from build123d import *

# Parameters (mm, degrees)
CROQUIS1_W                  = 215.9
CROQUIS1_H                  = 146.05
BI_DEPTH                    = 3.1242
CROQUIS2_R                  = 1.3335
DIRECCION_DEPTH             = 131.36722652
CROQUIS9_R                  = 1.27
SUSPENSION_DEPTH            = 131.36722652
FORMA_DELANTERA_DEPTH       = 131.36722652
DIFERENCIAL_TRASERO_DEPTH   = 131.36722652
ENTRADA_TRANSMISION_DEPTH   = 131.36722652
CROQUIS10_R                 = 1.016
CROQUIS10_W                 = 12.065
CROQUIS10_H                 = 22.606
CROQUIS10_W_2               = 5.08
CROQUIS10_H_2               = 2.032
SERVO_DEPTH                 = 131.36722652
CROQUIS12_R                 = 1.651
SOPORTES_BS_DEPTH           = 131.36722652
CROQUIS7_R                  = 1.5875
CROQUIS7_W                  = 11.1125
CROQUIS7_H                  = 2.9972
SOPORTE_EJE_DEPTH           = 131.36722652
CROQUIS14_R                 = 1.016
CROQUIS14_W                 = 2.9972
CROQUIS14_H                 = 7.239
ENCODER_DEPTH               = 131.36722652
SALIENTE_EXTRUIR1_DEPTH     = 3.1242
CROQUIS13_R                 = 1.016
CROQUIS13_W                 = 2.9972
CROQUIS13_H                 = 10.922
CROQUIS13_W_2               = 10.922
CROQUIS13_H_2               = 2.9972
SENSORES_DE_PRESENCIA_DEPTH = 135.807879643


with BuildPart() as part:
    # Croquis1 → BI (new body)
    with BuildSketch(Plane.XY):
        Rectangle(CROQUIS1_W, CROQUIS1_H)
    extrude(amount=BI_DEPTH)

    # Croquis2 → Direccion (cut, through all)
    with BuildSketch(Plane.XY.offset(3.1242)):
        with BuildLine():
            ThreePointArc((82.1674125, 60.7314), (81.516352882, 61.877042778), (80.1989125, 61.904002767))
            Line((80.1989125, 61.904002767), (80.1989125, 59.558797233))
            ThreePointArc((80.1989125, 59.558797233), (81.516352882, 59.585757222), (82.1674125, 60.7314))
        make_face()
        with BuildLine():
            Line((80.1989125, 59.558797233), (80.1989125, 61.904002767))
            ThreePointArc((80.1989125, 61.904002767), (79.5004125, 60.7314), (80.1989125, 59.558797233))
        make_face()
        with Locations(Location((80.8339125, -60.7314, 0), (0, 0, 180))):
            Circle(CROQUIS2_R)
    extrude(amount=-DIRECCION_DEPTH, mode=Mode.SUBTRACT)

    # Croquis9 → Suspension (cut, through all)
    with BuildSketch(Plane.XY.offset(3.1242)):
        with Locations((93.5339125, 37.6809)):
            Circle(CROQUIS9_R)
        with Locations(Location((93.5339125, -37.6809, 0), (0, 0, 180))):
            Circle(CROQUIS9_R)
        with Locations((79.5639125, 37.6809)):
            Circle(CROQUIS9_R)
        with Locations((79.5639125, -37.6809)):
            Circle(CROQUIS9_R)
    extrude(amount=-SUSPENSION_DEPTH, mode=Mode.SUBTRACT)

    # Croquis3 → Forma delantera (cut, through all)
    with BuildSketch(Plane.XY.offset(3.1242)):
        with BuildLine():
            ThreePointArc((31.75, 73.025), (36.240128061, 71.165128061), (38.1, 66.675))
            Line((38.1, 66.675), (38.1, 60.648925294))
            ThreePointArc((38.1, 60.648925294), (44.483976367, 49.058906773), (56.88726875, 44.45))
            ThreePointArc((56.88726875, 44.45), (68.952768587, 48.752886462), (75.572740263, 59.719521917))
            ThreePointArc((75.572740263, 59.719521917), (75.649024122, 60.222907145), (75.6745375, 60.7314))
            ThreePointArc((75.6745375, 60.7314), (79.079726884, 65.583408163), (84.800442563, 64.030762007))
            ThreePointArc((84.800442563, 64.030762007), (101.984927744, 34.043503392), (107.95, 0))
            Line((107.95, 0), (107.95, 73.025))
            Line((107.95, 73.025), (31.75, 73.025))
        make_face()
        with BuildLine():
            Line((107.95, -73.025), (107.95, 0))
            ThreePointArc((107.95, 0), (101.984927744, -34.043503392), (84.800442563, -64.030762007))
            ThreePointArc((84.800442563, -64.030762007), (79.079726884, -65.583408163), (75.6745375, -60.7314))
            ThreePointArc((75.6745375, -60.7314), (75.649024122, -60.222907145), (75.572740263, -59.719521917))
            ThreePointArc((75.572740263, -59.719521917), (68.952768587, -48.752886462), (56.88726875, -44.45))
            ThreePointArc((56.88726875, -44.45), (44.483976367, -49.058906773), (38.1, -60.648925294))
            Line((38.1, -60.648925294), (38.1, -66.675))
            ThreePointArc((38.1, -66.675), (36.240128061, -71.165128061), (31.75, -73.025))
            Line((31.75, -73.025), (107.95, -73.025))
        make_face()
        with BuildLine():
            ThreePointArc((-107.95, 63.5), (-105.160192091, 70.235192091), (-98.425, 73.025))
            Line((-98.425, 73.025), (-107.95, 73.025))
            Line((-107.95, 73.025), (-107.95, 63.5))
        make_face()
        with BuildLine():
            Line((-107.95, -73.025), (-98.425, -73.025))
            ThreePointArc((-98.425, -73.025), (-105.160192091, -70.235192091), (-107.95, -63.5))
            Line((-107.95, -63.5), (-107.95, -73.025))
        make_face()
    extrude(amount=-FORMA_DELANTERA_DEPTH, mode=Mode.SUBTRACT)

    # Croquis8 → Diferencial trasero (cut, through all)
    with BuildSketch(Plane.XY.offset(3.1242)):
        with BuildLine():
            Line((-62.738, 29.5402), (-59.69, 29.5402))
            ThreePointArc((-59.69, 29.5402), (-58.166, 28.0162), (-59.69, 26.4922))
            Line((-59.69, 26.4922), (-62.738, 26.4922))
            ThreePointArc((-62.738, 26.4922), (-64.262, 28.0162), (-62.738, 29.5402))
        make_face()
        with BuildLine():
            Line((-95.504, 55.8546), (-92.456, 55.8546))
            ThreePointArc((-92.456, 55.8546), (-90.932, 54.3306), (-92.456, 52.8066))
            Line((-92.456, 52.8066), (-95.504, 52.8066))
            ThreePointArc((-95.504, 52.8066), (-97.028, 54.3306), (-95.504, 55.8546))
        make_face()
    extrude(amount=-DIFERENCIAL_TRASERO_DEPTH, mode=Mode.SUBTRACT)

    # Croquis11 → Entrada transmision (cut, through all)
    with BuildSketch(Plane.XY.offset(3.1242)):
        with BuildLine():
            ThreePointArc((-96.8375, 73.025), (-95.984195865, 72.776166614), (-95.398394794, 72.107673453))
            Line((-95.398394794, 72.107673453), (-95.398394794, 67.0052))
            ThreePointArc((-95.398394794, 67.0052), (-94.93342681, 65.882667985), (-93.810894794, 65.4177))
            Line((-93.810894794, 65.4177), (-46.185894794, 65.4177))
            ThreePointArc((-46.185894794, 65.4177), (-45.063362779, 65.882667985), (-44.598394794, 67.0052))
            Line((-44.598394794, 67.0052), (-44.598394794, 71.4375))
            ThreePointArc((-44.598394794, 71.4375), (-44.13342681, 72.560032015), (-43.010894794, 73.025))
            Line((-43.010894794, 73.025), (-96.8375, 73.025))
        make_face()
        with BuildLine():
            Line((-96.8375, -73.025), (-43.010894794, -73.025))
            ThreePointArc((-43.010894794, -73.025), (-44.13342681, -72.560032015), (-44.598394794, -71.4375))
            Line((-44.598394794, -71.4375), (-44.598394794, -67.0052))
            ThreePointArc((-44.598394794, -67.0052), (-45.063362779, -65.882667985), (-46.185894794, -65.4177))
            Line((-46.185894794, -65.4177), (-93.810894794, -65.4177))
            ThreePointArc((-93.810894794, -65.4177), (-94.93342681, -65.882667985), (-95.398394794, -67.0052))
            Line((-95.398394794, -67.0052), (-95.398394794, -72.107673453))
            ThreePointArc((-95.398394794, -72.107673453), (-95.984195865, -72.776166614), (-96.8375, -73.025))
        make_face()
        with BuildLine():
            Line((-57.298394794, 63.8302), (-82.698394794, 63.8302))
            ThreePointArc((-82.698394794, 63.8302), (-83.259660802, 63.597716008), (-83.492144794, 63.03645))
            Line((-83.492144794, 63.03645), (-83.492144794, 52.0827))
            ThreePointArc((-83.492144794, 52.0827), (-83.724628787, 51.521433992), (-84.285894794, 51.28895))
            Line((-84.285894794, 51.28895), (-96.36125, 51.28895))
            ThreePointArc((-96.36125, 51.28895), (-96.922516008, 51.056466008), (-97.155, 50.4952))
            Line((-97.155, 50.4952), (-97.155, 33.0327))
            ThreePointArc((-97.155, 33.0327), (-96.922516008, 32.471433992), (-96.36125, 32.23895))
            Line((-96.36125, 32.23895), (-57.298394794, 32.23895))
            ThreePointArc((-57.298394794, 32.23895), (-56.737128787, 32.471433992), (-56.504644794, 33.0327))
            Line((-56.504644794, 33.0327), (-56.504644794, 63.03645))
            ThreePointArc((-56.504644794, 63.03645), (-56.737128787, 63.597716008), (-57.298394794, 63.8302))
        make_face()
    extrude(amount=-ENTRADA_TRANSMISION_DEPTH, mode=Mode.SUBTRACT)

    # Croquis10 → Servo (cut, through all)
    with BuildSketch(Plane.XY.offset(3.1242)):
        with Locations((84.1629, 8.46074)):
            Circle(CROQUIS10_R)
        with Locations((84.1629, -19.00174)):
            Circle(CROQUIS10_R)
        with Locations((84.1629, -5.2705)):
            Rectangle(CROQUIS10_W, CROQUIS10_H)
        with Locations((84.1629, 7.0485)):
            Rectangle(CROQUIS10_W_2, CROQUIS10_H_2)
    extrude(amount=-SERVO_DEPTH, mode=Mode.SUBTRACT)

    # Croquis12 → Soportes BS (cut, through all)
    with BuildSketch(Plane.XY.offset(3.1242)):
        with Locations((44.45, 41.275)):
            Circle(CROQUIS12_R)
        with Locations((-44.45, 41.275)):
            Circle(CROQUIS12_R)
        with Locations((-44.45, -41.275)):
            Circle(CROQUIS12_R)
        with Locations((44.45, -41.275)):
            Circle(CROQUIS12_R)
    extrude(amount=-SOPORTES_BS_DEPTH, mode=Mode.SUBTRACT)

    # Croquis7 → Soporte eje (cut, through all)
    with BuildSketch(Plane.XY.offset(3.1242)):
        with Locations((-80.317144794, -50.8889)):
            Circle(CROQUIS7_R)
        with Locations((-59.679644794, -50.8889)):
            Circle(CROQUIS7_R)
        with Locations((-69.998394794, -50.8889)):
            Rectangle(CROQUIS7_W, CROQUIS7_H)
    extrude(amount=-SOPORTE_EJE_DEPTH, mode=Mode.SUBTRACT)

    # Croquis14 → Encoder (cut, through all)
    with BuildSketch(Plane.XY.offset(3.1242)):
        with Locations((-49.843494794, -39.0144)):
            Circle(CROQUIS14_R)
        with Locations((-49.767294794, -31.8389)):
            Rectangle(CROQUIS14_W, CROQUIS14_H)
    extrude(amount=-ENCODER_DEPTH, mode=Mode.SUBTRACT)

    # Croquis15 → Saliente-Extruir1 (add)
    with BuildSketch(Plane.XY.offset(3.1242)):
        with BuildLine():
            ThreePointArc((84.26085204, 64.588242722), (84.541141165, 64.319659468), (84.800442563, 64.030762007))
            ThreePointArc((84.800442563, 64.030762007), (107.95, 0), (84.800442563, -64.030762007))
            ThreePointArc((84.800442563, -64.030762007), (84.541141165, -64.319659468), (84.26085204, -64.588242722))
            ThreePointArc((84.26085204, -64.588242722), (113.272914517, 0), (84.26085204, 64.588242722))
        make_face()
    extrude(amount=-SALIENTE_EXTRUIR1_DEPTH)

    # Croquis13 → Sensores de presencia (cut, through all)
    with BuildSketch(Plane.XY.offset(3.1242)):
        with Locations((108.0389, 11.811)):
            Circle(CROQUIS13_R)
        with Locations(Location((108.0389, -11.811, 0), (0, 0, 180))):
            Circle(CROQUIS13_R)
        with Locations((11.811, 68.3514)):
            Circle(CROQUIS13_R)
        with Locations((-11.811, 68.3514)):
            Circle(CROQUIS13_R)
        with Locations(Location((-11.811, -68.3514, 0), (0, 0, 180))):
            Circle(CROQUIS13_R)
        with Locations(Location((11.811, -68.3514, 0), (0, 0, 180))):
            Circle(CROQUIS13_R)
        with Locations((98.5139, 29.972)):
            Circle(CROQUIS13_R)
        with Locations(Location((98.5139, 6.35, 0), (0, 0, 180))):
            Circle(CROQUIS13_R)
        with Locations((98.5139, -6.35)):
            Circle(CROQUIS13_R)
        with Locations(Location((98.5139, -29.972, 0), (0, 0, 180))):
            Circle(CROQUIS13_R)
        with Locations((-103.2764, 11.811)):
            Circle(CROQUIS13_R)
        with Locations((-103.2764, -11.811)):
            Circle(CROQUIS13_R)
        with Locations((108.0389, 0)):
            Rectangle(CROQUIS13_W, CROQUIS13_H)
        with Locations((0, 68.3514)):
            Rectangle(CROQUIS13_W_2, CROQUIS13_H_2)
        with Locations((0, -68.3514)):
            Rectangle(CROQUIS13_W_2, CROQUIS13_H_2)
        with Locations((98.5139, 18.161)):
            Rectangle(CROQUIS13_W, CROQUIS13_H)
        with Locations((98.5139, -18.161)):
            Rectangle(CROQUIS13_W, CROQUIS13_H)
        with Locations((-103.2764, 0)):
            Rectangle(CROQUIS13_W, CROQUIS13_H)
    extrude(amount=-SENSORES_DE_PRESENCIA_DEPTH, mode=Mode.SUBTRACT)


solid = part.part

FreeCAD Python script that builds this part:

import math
import FreeCAD as App
import Part
import Sketcher

V = App.Vector
Q = App.Units.Quantity


def add_polygon(sketch, points):
    """Adds a closed chain of lines whose ends are joined by coincident constraints."""
    first, n = sketch.GeometryCount, len(points)
    for a, b in zip(points, points[1:] + points[:1]):
        sketch.addGeometry(Part.LineSegment(App.Vector(*a, 0), App.Vector(*b, 0)), False)
    for i in range(n):
        sketch.addConstraint(Sketcher.Constraint("Coincident", first + i, 2, first + (i + 1) % n, 1))

doc = App.newDocument("Part")
params = doc.addObject("Spreadsheet::Sheet", "Params")
for row, (alias, value) in enumerate([
    ("sketch1_width", "8.5 in"),
    ("sketch1_height", "5.75 in"),
    ("pad1_length", "0.123 in"),
    ("sketch2_diameter", "0.105 in"),
    ("sketch3_diameter", "0.1 in"),
    ("sketch4_radius", "0.2 in"),
    ("sketch4_width", "3 in"),
    ("sketch4_radius2", "0.25 in"),
    ("sketch4_radius3", "0.203125 in"),
    ("sketch4_radius4", "0.375 in"),
    ("sketch5_radius", "0.06 in"),
    ("sketch5_width", "0.12 in"),
    ("sketch6_width", "1 in"),
    ("sketch6_radius", "0.0625 in"),
    ("sketch6_radius2", "0.03125 in"),
    ("sketch6_height", "0.6875 in"),
    ("sketch7_diameter", "0.08 in"),
    ("sketch7_height", "0.08 in"),
    ("sketch7_height2", "0.89 in"),
    ("sketch7_width", "0.475 in"),
    ("sketch8_diameter", "0.13 in"),
    ("sketch9_diameter", "0.125 in"),
    ("sketch9_width", "0.4375 in"),
    ("sketch9_height", "0.118 in"),
    ("sketch10_diameter", "0.08 in"),
    ("sketch10_width", "0.118 in"),
    ("sketch10_height", "0.285 in"),
    ("sketch11_radius", "0.203125 in"),
    ("pad2_length", "0.123 in"),
    ("sketch12_diameter", "0.08 in"),
    ("sketch12_width", "0.43 in"),
    ("sketch12_width2", "0.118 in"),
], start=1):
    params.set(f"A{row}", alias)
    params.set(f"B{row}", "=" + value)
    params.setAlias(f"B{row}", alias)

body = doc.addObject("PartDesign::Body", "Body")

sketch1 = body.newObject("Sketcher::SketchObject", "Sketch")
sketch1.AttachmentSupport = (doc.getObject("XY_Plane"), [""])
sketch1.MapMode = "FlatFace"
add_polygon(sketch1, [(-108, 73), (-108, -73), (108, -73), (108, 73)])
sketch1.addConstraint([
    Sketcher.Constraint("Vertical", 0),
    Sketcher.Constraint("Horizontal", 1),
    Sketcher.Constraint("Vertical", 2),
    Sketcher.Constraint("Horizontal", 3),
    Sketcher.Constraint("Symmetric", 0, 2, 2, 2, -1, 1),
    Sketcher.Constraint("DistanceX", 1, 1, 1, 2, Q("8.5 in")),
    Sketcher.Constraint("DistanceY", 0, 2, 0, 1, Q("5.75 in")),
])
sketch1.setExpression("Constraints[9]", "Params.sketch1_width")
sketch1.setExpression("Constraints[10]", "Params.sketch1_height")
pad1 = body.newObject("PartDesign::Pad", "Pad")
pad1.Profile = sketch1
pad1.setExpression("Length", "Params.pad1_length")

sketch2 = body.newObject("Sketcher::SketchObject", "Sketch001")
sketch2.AttachmentSupport = (doc.getObject("XY_Plane"), [""])
sketch2.MapMode = "FlatFace"
sketch2.AttachmentOffset = App.Placement(V(0, 0, 0.123 * 25.4), App.Rotation())
sketch2.addGeometry([
    Part.ArcOfCircle(Part.Circle(V(80.8, 60.7, 0), V(0, 0, 1), 1.3), math.radians(0), math.radians(118)),
    Part.ArcOfCircle(Part.Circle(V(80.8, 60.7, 0), V(0, 0, 1), 1.3), math.radians(118), math.radians(242)),
    Part.ArcOfCircle(Part.Circle(V(80.8, 60.7, 0), V(0, 0, 1), 1.3), math.radians(-118), math.radians(0)),
    Part.Circle(V(80.8, -60.7, 0), V(0, 0, 1), 1.3),
], False)
sketch2.addConstraint([
    Sketcher.Constraint("Tangent", 0, 2, 1, 1),
    Sketcher.Constraint("Tangent", 1, 2, 2, 1),
    Sketcher.Constraint("Tangent", 2, 2, 0, 1),
    Sketcher.Constraint("Equal", 2, 3),
    Sketcher.Constraint("Symmetric", 0, 3, 3, 3, -1),
    Sketcher.Constraint("Horizontal", 1, 3, 2, 2),
    Sketcher.Constraint("Vertical", 0, 2, 1, 2),
    Sketcher.Constraint("Diameter", 3, Q("0.105 in")),
    Sketcher.Constraint("DistanceY", -1, 1, 0, 3, Q("2.391 in")),
    Sketcher.Constraint("DistanceX", 0, 2, 1, 3, Q("0.025 in")),
    Sketcher.Constraint("DistanceX", -1, 1, 0, 3, Q("80.833912 mm")),
])
sketch2.setExpression("Constraints[7]", "Params.sketch2_diameter")
pocket1 = body.newObject("PartDesign::Pocket", "Pocket")
pocket1.Profile = sketch2
pocket1.Type = "ThroughAll"

sketch3 = body.newObject("Sketcher::SketchObject", "Sketch002")
sketch3.AttachmentSupport = (doc.getObject("XY_Plane"), [""])
sketch3.MapMode = "FlatFace"
sketch3.AttachmentOffset = App.Placement(V(0, 0, 0.123 * 25.4), App.Rotation())
sketch3.addGeometry([
    Part.Circle(V(93.5, 37.7, 0), V(0, 0, 1), 1.3),
    Part.Circle(V(93.5, -37.7, 0), V(0, 0, 1), 1.3),
    Part.Circle(V(79.6, 37.7, 0), V(0, 0, 1), 1.3),
    Part.Circle(V(79.6, -37.7, 0), V(0, 0, 1), 1.3),
], False)
sketch3.addConstraint([
    Sketcher.Constraint("Equal", 0, 1),
    Sketcher.Constraint("Equal", 1, 2),
    Sketcher.Constraint("Equal", 2, 3),
    Sketcher.Constraint("Symmetric", 0, 3, 1, 3, -1),
    Sketcher.Constraint("Symmetric", 2, 3, 3, 3, -1),
    Sketcher.Constraint("Horizontal", 0, 3, 2, 3),
    Sketcher.Constraint("Diameter", 0, Q("0.1 in")),
    Sketcher.Constraint("DistanceX", 2, 3, 0, 3, Q("0.55 in")),
    Sketcher.Constraint("DistanceY", 1, 3, 0, 3, Q("2.967 in")),
    Sketcher.Constraint("DistanceX", -1, 1, 0, 3, Q("93.533912 mm")),
])
sketch3.setExpression("Constraints[6]", "Params.sketch3_diameter")
pocket2 = body.newObject("PartDesign::Pocket", "Pocket001")
pocket2.Profile = sketch3
pocket2.Type = "ThroughAll"

sketch4 = body.newObject("Sketcher::SketchObject", "Sketch003")
sketch4.AttachmentSupport = (doc.getObject("XY_Plane"), [""])
sketch4.MapMode = "FlatFace"
sketch4.AttachmentOffset = App.Placement(V(0, 0, 0.123 * 25.4), App.Rotation())
sketch4.addGeometry([
    Part.ArcOfCircle(Part.Circle(V(31.8, 66.7, 0), V(0, 0, 1), 6.3), math.radians(0), math.radians(90)),
    Part.LineSegment(V(38.1, 66.7, 0), V(38.1, 60.6, 0)),
    Part.ArcOfCircle(Part.Circle(V(56.9, 63.4, 0), V(0, 0, 1), 19), math.radians(-172), math.radians(-90)),
    Part.ArcOfCircle(Part.Circle(V(56.9, 63.5, 0), V(0, 0, 1), 19.1), math.radians(-90), math.radians(-11)),
    Part.ArcOfCircle(Part.Circle(V(70.6, 60.7, 0), V(0, 0, 1), 5.1), math.radians(-11.49), math.radians(0)),
    Part.ArcOfCircle(Part.Circle(V(80.8, 60.7, 0), V(0, 0, 1), 5.2), math.radians(40), math.radians(180)),
    Part.ArcOfCircle(Part.Circle(V(7.8, 0, 0), V(0, 0, 1), 100.1), math.radians(0), math.radians(40)),
    Part.LineSegment(V(108, 0, 0), V(108, 73, 0)),
    Part.LineSegment(V(108, 73, 0), V(31.8, 73, 0)),
    Part.LineSegment(V(108, -73, 0), V(108, 0, 0)),
    Part.ArcOfCircle(Part.Circle(V(7.8, 0, 0), V(0, 0, 1), 100.1), math.radians(-40), math.radians(0)),
    Part.ArcOfCircle(Part.Circle(V(80.8, -60.7, 0), V(0, 0, 1), 5.2), math.radians(180), math.radians(320)),
    Part.ArcOfCircle(Part.Circle(V(70.6, -60.7, 0), V(0, 0, 1), 5.1), math.radians(0), math.radians(11.49)),
    Part.ArcOfCircle(Part.Circle(V(56.9, -63.5, 0), V(0, 0, 1), 19.1), math.radians(11), math.radians(90)),
    Part.ArcOfCircle(Part.Circle(V(56.9, -63.4, 0), V(0, 0, 1), 19), math.radians(90), math.radians(172)),
    Part.LineSegment(V(38.1, -60.6, 0), V(38.1, -66.7, 0)),
    Part.ArcOfCircle(Part.Circle(V(31.8, -66.7, 0), V(0, 0, 1), 6.3), math.radians(-90), math.radians(0)),
    Part.LineSegment(V(31.8, -73, 0), V(108, -73, 0)),
    Part.ArcOfCircle(Part.Circle(V(-98.4, 63.5, 0), V(0, 0, 1), 9.5), math.radians(90), math.radians(180)),
    Part.LineSegment(V(-98.4, 73, 0), V(-108, 73, 0)),
    Part.LineSegment(V(-108, 73, 0), V(-108, 63.5, 0)),
    Part.LineSegment(V(-108, -73, 0), V(-98.4, -73, 0)),
    Part.ArcOfCircle(Part.Circle(V(-98.4, -63.5, 0), V(0, 0, 1), 9.5), math.radians(180), math.radians(270)),
    Part.LineSegment(V(-108, -63.5, 0), V(-108, -73, 0)),
], False)
sketch4.addConstraint([
    Sketcher.Constraint("Tangent", 0, 1, 1, 1),
    Sketcher.Constraint("Coincident", 1, 2, 2, 1),
    Sketcher.Constraint("Tangent", 2, 2, 3, 1),
    Sketcher.Constraint("Tangent", 3, 2, 4, 1),
    Sketcher.Constraint("Tangent", 4, 2, 5, 2),
    Sketcher.Constraint("Tangent", 5, 1, 6, 2),
    Sketcher.Constraint("Tangent", 6, 1, 7, 1),
    Sketcher.Constraint("Coincident", 7, 2, 8, 1),
    Sketcher.Constraint("Tangent", 8, 2, 0, 2),
    Sketcher.Constraint("Tangent", 9, 2, 10, 2),
    Sketcher.Constraint("Tangent", 10, 1, 11, 2),
    Sketcher.Constraint("Tangent", 11, 1, 12, 1),
    Sketcher.Constraint("Tangent", 12, 2, 13, 1),
    Sketcher.Constraint("Tangent", 13, 2, 14, 1),
    Sketcher.Constraint("Coincident", 14, 2, 15, 1),
    Sketcher.Constraint("Tangent", 15, 2, 16, 2),
    Sketcher.Constraint("Tangent", 16, 1, 17, 1),
    Sketcher.Constraint("Coincident", 17, 2, 9, 1),
    Sketcher.Constraint("Tangent", 18, 1, 19, 1),
    Sketcher.Constraint("Coincident", 19, 2, 20, 1),
    Sketcher.Constraint("Tangent", 20, 2, 18, 2),
    Sketcher.Constraint("Tangent", 21, 2, 22, 2),
    Sketcher.Constraint("Tangent", 22, 1, 23, 1),
    Sketcher.Constraint("Coincident", 23, 2, 21, 1),
    Sketcher.Constraint("Vertical", 1),
    Sketcher.Constraint("Vertical", 7),
    Sketcher.Constraint("Horizontal", 8),
    Sketcher.Constraint("Vertical", 9),
    Sketcher.Constraint("Vertical", 15),
    Sketcher.Constraint("Horizontal", 17),
    Sketcher.Constraint("Horizontal", 19),
    Sketcher.Constraint("Vertical", 20),
    Sketcher.Constraint("Horizontal", 21),
    Sketcher.Constraint("Vertical", 23),
    Sketcher.Constraint("Coincident", 10, 3, 6, 3),
    Sketcher.Constraint("Equal", 6, 10),
    Sketcher.Constraint("Equal", 5, 11),
    Sketcher.Constraint("Equal", 4, 12),
    Sketcher.Constraint("Equal", 3, 13),
    Sketcher.Constraint("Equal", 2, 14),
    Sketcher.Constraint("Equal", 0, 16),
    Sketcher.Constraint("Equal", 18, 22),
    Sketcher.Constraint("Symmetric", 17, 2, 19, 2, -1, 1),
    Sketcher.Constraint("Symmetric", 7, 2, 23, 2, -1, 1),
    Sketcher.Constraint("Symmetric", 5, 3, 11, 3, -1),
    Sketcher.Constraint("Symmetric", 3, 3, 13, 3, -1),
    Sketcher.Constraint("Symmetric", 0, 3, 16, 3, -1),
    Sketcher.Constraint("Horizontal", 4, 3, 5, 3),
    Sketcher.Constraint("Vertical", 2, 3, 3, 3),
    Sketcher.Constraint("Vertical", 13, 3, 14, 3),
    Sketcher.Constraint("Radius", 4, Q("0.2 in")),
    Sketcher.Constraint("DistanceX", 8, 2, 8, 1, Q("3 in")),
    Sketcher.Constraint("Radius", 0, Q("0.25 in")),
    Sketcher.Constraint("Radius", 5, Q("0.203125 in")),
    Sketcher.Constraint("Radius", 18, Q("0.375 in")),
    Sketcher.Constraint("DistanceY", 22, 3, 18, 3, Q("5 in")),
    Sketcher.Constraint("DistanceX", -1, 1, 0, 1, Q("1.5 in")),
    Sketcher.Constraint("DistanceY", -1, 1, 2, 2, Q("1.75 in")),
    Sketcher.Constraint("DistanceY", -1, 1, 4, 3, Q("2.391 in")),
    Sketcher.Constraint("Radius", 6, Q("100.128059 mm")),
    Sketcher.Constraint("Radius", 2, Q("18.994058 mm")),
    Sketcher.Constraint("Radius", 3, Q("19.067563 mm")),
])
sketch4.setExpression("Constraints[50]", "Params.sketch4_radius")
sketch4.setExpression("Constraints[51]", "Params.sketch4_width")
sketch4.setExpression("Constraints[52]", "Params.sketch4_radius2")
sketch4.setExpression("Constraints[53]", "Params.sketch4_radius3")
sketch4.setExpression("Constraints[54]", "Params.sketch4_radius4")
pocket3 = body.newObject("PartDesign::Pocket", "Pocket002")
pocket3.Profile = sketch4
pocket3.Type = "ThroughAll"

sketch5 = body.newObject("Sketcher::SketchObject", "Sketch004")
sketch5.AttachmentSupport = (doc.getObject("XY_Plane"), [""])
sketch5.MapMode = "FlatFace"
sketch5.AttachmentOffset = App.Placement(V(0, 0, 0.123 * 25.4), App.Rotation())
sketch5.addGeometry([
    Part.LineSegment(V(-59.7, 29.5, 0), V(-62.7, 29.5, 0)),
    Part.ArcOfCircle(Part.Circle(V(-62.7, 28, 0), V(0, 0, 1), 1.5), math.radians(90), math.radians(270)),
    Part.LineSegment(V(-62.7, 26.5, 0), V(-59.7, 26.5, 0)),
    Part.ArcOfCircle(Part.Circle(V(-59.7, 28, 0), V(0, 0, 1), 1.5), math.radians(-90), math.radians(90)),
    Part.LineSegment(V(-92.5, 55.9, 0), V(-95.5, 55.9, 0)),
    Part.ArcOfCircle(Part.Circle(V(-95.5, 54.3, 0), V(0, 0, 1), 1.5), math.radians(90), math.radians(270)),
    Part.LineSegment(V(-95.5, 52.8, 0), V(-92.5, 52.8, 0)),
    Part.ArcOfCircle(Part.Circle(V(-92.5, 54.3, 0), V(0, 0, 1), 1.5), math.radians(-90), math.radians(90)),
], False)
sketch5.addConstraint([
    Sketcher.Constraint("Tangent", 0, 2, 1, 1),
    Sketcher.Constraint("Tangent", 1, 2, 2, 1),
    Sketcher.Constraint("Tangent", 2, 2, 3, 1),
    Sketcher.Constraint("Tangent", 3, 2, 0, 1),
    Sketcher.Constraint("Tangent", 4, 2, 5, 1),
    Sketcher.Constraint("Tangent", 5, 2, 6, 1),
    Sketcher.Constraint("Tangent", 6, 2, 7, 1),
    Sketcher.Constraint("Tangent", 7, 2, 4, 1),
    Sketcher.Constraint("Horizontal", 0),
    Sketcher.Constraint("Horizontal", 2),
    Sketcher.Constraint("Horizontal", 4),
    Sketcher.Constraint("Horizontal", 6),
    Sketcher.Constraint("Equal", 3, 5),
    Sketcher.Constraint("Equal", 2, 4),
    Sketcher.Constraint("Radius", 1, Q("0.06 in")),
    Sketcher.Constraint("DistanceX", 0, 2, 0, 1, Q("0.12 in")),
    Sketcher.Constraint("DistanceX", 1, 3, -1, 1, Q("2.47 in")),
    Sketcher.Constraint("DistanceX", 5, 3, -1, 1, Q("3.76 in")),
    Sketcher.Constraint("DistanceY", -1, 1, 1, 3, Q("1.103 in")),
    Sketcher.Constraint("DistanceY", -1, 1, 5, 3, Q("2.139 in")),
])
sketch5.setExpression("Constraints[14]", "Params.sketch5_radius")
sketch5.setExpression("Constraints[15]", "Params.sketch5_width")
pocket4 = body.newObject("PartDesign::Pocket", "Pocket003")
pocket4.Profile = sketch5
pocket4.Type = "ThroughAll"

sketch6 = body.newObject("Sketcher::SketchObject", "Sketch005")
sketch6.AttachmentSupport = (doc.getObject("XY_Plane"), [""])
sketch6.MapMode = "FlatFace"
sketch6.AttachmentOffset = App.Placement(V(0, 0, 0.123 * 25.4), App.Rotation())
sketch6.addGeometry([
    Part.ArcOfCircle(Part.Circle(V(-96.8, 71.4, 0), V(0, 0, 1), 1.6), math.radians(25), math.radians(90)),
    Part.LineSegment(V(-95.4, 72.1, 0), V(-95.4, 67, 0)),
    Part.ArcOfCircle(Part.Circle(V(-93.8, 67, 0), V(0, 0, 1), 1.6), math.radians(180), math.radians(270)),
    Part.LineSegment(V(-93.8, 65.4, 0), V(-46.2, 65.4, 0)),
    Part.ArcOfCircle(Part.Circle(V(-46.2, 67, 0), V(0, 0, 1), 1.6), math.radians(-90), math.radians(0)),
    Part.LineSegment(V(-44.6, 67, 0), V(-44.6, 71.4, 0)),
    Part.ArcOfCircle(Part.Circle(V(-43, 71.4, 0), V(0, 0, 1), 1.6), math.radians(90), math.radians(180)),
    Part.LineSegment(V(-43, 73, 0), V(-96.8, 73, 0)),
    Part.LineSegment(V(-96.8, -73, 0), V(-43, -73, 0)),
    Part.ArcOfCircle(Part.Circle(V(-43, -71.4, 0), V(0, 0, 1), 1.6), math.radians(180), math.radians(270)),
    Part.LineSegment(V(-44.6, -71.4, 0), V(-44.6, -67, 0)),
    Part.ArcOfCircle(Part.Circle(V(-46.2, -67, 0), V(0, 0, 1), 1.6), math.radians(0), math.radians(90)),
    Part.LineSegment(V(-46.2, -65.4, 0), V(-93.8, -65.4, 0)),
    Part.ArcOfCircle(Part.Circle(V(-93.8, -67, 0), V(0, 0, 1), 1.6), math.radians(90), math.radians(180)),
    Part.LineSegment(V(-95.4, -67, 0), V(-95.4, -72.1, 0)),
    Part.ArcOfCircle(Part.Circle(V(-96.8, -71.4, 0), V(0, 0, 1), 1.6), math.radians(-90), math.radians(-25)),
    Part.LineSegment(V(-57.3, 63.8, 0), V(-82.7, 63.8, 0)),
    Part.ArcOfCircle(Part.Circle(V(-82.7, 63, 0), V(0, 0, 1), 0.8), math.radians(90), math.radians(180)),
    Part.LineSegment(V(-83.5, 63, 0), V(-83.5, 52.1, 0)),
    Part.ArcOfCircle(Part.Circle(V(-84.3, 52.1, 0), V(0, 0, 1), 0.8), math.radians(-90), math.radians(0)),
    Part.LineSegment(V(-84.3, 51.3, 0), V(-96.4, 51.3, 0)),
    Part.ArcOfCircle(Part.Circle(V(-96.4, 50.5, 0), V(0, 0, 1), 0.8), math.radians(90), math.radians(180)),
    Part.LineSegment(V(-97.2, 50.5, 0), V(-97.2, 33, 0)),
    Part.ArcOfCircle(Part.Circle(V(-96.4, 33, 0), V(0, 0, 1), 0.8), math.radians(180), math.radians(270)),
    Part.LineSegment(V(-96.4, 32.2, 0), V(-57.3, 32.2, 0)),
    Part.ArcOfCircle(Part.Circle(V(-57.3, 33, 0), V(0, 0, 1), 0.8), math.radians(-90), math.radians(0)),
    Part.LineSegment(V(-56.5, 33, 0), V(-56.5, 63, 0)),
    Part.ArcOfCircle(Part.Circle(V(-57.3, 63, 0), V(0, 0, 1), 0.8), math.radians(0), math.radians(90)),
], False)
sketch6.addConstraint([
    Sketcher.Constraint("Coincident", 0, 1, 1, 1),
    Sketcher.Constraint("Tangent", 1, 2, 2, 1),
    Sketcher.Constraint("Tangent", 2, 2, 3, 1),
    Sketcher.Constraint("Tangent", 3, 2, 4, 1),
    Sketcher.Constraint("Tangent", 4, 2, 5, 1),
    Sketcher.Constraint("Tangent", 5, 2, 6, 2),
    Sketcher.Constraint("Tangent", 6, 1, 7, 1),
    Sketcher.Constraint("Tangent", 7, 2, 0, 2),
    Sketcher.Constraint("Tangent", 8, 2, 9, 2),
    Sketcher.Constraint("Tangent", 9, 1, 10, 1),
    Sketcher.Constraint("Tangent", 10, 2, 11, 1),
    Sketcher.Constraint("Tangent", 11, 2, 12, 1),
    Sketcher.Constraint("Tangent", 12, 2, 13, 1),
    Sketcher.Constraint("Tangent", 13, 2, 14, 1),
    Sketcher.Constraint("Coincident", 14, 2, 15, 2),
    Sketcher.Constraint("Tangent", 15, 1, 8, 1),
    Sketcher.Constraint("Tangent", 16, 2, 17, 1),
    Sketcher.Constraint("Tangent", 17, 2, 18, 1),
    Sketcher.Constraint("Tangent", 18, 2, 19, 2),
    Sketcher.Constraint("Tangent", 19, 1, 20, 1),
    Sketcher.Constraint("Tangent", 20, 2, 21, 1),
    Sketcher.Constraint("Tangent", 21, 2, 22, 1),
    Sketcher.Constraint("Tangent", 22, 2, 23, 1),
    Sketcher.Constraint("Tangent", 23, 2, 24, 1),
    Sketcher.Constraint("Tangent", 24, 2, 25, 1),
    Sketcher.Constraint("Tangent", 25, 2, 26, 1),
    Sketcher.Constraint("Tangent", 26, 2, 27, 1),
    Sketcher.Constraint("Tangent", 27, 2, 16, 1),
    Sketcher.Constraint("Vertical", 1),
    Sketcher.Constraint("Horizontal", 3),
    Sketcher.Constraint("Vertical", 5),
    Sketcher.Constraint("Horizontal", 7),
    Sketcher.Constraint("Horizontal", 8),
    Sketcher.Constraint("Vertical", 10),
    Sketcher.Constraint("Horizontal", 12),
    Sketcher.Constraint("Vertical", 14),
    Sketcher.Constraint("Horizontal", 16),
    Sketcher.Constraint("Vertical", 18),
    Sketcher.Constraint("Horizontal", 20),
    Sketcher.Constraint("Vertical", 22),
    Sketcher.Constraint("Horizontal", 24),
    Sketcher.Constraint("Vertical", 26),
    Sketcher.Constraint("Equal", 0, 2),
    Sketcher.Constraint("Equal", 2, 4),
    Sketcher.Constraint("Equal", 4, 6),
    Sketcher.Constraint("Equal", 6, 9),
    Sketcher.Constraint("Equal", 9, 11),
    Sketcher.Constraint("Equal", 11, 13),
    Sketcher.Constraint("Equal", 13, 15),
    Sketcher.Constraint("Equal", 17, 19),
    Sketcher.Constraint("Equal", 19, 21),
    Sketcher.Constraint("Equal", 21, 23),
    Sketcher.Constraint("Equal", 23, 25),
    Sketcher.Constraint("Equal", 25, 27),
    Sketcher.Constraint("Symmetric", 6, 3, 9, 3, -1),
    Sketcher.Constraint("Symmetric", 2, 3, 13, 3, -1),
    Sketcher.Constraint("Vertical", 0, 3, 15, 3),
    Sketcher.Constraint("DistanceX", 16, 2, 16, 1, Q("1 in")),
    Sketcher.Constraint("Radius", 0, Q("0.0625 in")),
    Sketcher.Constraint("Radius", 17, Q("0.03125 in")),
    Sketcher.Constraint("DistanceX", 2, 3, 6, 3, Q("2 in")),
    Sketcher.Constraint("DistanceX", 19, 3, 4, 3, Q("1.5 in")),
    Sketcher.Constraint("DistanceY", 22, 2, 22, 1, Q("0.6875 in")),
    Sketcher.Constraint("DistanceY", 21, 3, 2, 3, Q("0.65 in")),
    Sketcher.Constraint("DistanceY", 5, 1, 5, 2, Q("0.1745 in")),
    Sketcher.Constraint("DistanceX", 0, 3, -1, 1, Q("3.8125 in")),
    Sketcher.Constraint("DistanceY", -1, 1, 0, 3, Q("2.8125 in")),
    Sketcher.Constraint("DistanceY", -1, 1, 16, 2, Q("2.513 in")),
    Sketcher.Constraint("DistanceX", 21, 2, -1, 1, Q("3.825 in")),
    Sketcher.Constraint("DistanceX", 7, 2, 7, 1, Q("53.826605 mm")),
])
sketch6.setExpression("Constraints[57]", "Params.sketch6_width")
sketch6.setExpression("Constraints[58]", "Params.sketch6_radius")
sketch6.setExpression("Constraints[59]", "Params.sketch6_radius2")
sketch6.setExpression("Constraints[62]", "Params.sketch6_height")
pocket5 = body.newObject("PartDesign::Pocket", "Pocket004")
pocket5.Profile = sketch6
pocket5.Type = "ThroughAll"

sketch7 = body.newObject("Sketcher::SketchObject", "Sketch006")
sketch7.AttachmentSupport = (doc.getObject("XY_Plane"), [""])
sketch7.MapMode = "FlatFace"
sketch7.AttachmentOffset = App.Placement(V(0, 0, 0.123 * 25.4), App.Rotation())
sketch7.addGeometry([
    Part.ArcOfCircle(Part.Circle(V(84.2, 8.5, 0), V(0, 0, 1), 1), math.radians(-23), math.radians(203)),
    Part.LineSegment(V(83.2, 8.1, 0), V(81.6, 8.1, 0)),
    Part.LineSegment(V(81.6, 8.1, 0), V(81.6, 6, 0)),
    Part.LineSegment(V(81.6, 6, 0), V(78.1, 6, 0)),
    Part.LineSegment(V(78.1, 6, 0), V(78.1, -16.6, 0)),
    Part.LineSegment(V(78.1, -16.6, 0), V(90.2, -16.6, 0)),
    Part.LineSegment(V(90.2, -16.6, 0), V(90.2, 6, 0)),
    Part.LineSegment(V(90.2, 6, 0), V(86.7, 6, 0)),
    Part.LineSegment(V(86.7, 6, 0), V(86.7, 8.1, 0)),
    Part.LineSegment(V(86.7, 8.1, 0), V(85.1, 8.1, 0)),
    Part.Circle(V(84.2, -19, 0), V(0, 0, 1), 1),
], False)
sketch7.addConstraint([
    Sketcher.Constraint("Coincident", 0, 2, 1, 1),
    Sketcher.Constraint("Coincident", 1, 2, 2, 1),
    Sketcher.Constraint("Coincident", 2, 2, 3, 1),
    Sketcher.Constraint("Coincident", 3, 2, 4, 1),
    Sketcher.Constraint("Coincident", 4, 2, 5, 1),
    Sketcher.Constraint("Coincident", 5, 2, 6, 1),
    Sketcher.Constraint("Coincident", 6, 2, 7, 1),
    Sketcher.Constraint("Coincident", 7, 2, 8, 1),
    Sketcher.Constraint("Coincident", 8, 2, 9, 1),
    Sketcher.Constraint("Coincident", 9, 2, 0, 1),
    Sketcher.Constraint("Horizontal", 1),
    Sketcher.Constraint("Vertical", 2),
    Sketcher.Constraint("Horizontal", 3),
    Sketcher.Constraint("Vertical", 4),
    Sketcher.Constraint("Horizontal", 5),
    Sketcher.Constraint("Vertical", 6),
    Sketcher.Constraint("Horizontal", 7),
    Sketcher.Constraint("Vertical", 8),
    Sketcher.Constraint("Horizontal", 9),
    Sketcher.Constraint("Equal", 0, 10),
    Sketcher.Constraint("Horizontal", 3, 2, 6, 2),
    Sketcher.Constraint("Horizontal", 1, 2, 8, 2),
    Sketcher.Constraint("Vertical", 0, 3, 10, 3),
    Sketcher.Constraint("Equal", 3, 7),
    Sketcher.Constraint("Equal", 1, 9),
    Sketcher.Constraint("Diameter", 10, Q("0.08 in")),
    Sketcher.Constraint("DistanceY", 2, 2, 2, 1, Q("0.08 in")),
    Sketcher.Constraint("DistanceY", 4, 2, 4, 1, Q("0.89 in")),
    Sketcher.Constraint("DistanceX", 1, 2, 0, 3, Q("0.1 in")),
    Sketcher.Constraint("DistanceX", 5, 1, 5, 2, Q("0.475 in")),
    Sketcher.Constraint("DistanceX", -1, 1, 3, 2, Q("3.076 in")),
    Sketcher.Constraint("DistanceY", -1, 1, 0, 3, Q("0.3331 in")),
    Sketcher.Constraint("DistanceY", 10, 3, -1, 1, Q("0.7481 in")),
    Sketcher.Constraint("DistanceY", -1, 1, 0, 2, Q("0.3175 in")),
])
sketch7.setExpression("Constraints[25]", "Params.sketch7_diameter")
sketch7.setExpression("Constraints[26]", "Params.sketch7_height")
sketch7.setExpression("Constraints[27]", "Params.sketch7_height2")
sketch7.setExpression("Constraints[29]", "Params.sketch7_width")
pocket6 = body.newObject("PartDesign::Pocket", "Pocket005")
pocket6.Profile = sketch7
pocket6.Type = "ThroughAll"

sketch8 = body.newObject("Sketcher::SketchObject", "Sketch007")
sketch8.AttachmentSupport = (doc.getObject("XY_Plane"), [""])
sketch8.MapMode = "FlatFace"
sketch8.AttachmentOffset = App.Placement(V(0, 0, 0.123 * 25.4), App.Rotation())
sketch8.addGeometry([
    Part.Circle(V(44.5, 41.3, 0), V(0, 0, 1), 1.7),
    Part.Circle(V(-44.5, 41.3, 0), V(0, 0, 1), 1.7),
    Part.Circle(V(-44.5, -41.3, 0), V(0, 0, 1), 1.7),
    Part.Circle(V(44.5, -41.3, 0), V(0, 0, 1), 1.7),
], False)
sketch8.addConstraint([
    Sketcher.Constraint("Equal", 0, 1),
    Sketcher.Constraint("Equal", 1, 2),
    Sketcher.Constraint("Equal", 2, 3),
    Sketcher.Constraint("Symmetric", 0, 3, 2, 3, -1, 1),
    Sketcher.Constraint("Symmetric", 1, 3, 3, 3, -1, 1),
    Sketcher.Constraint("Symmetric", 0, 3, 1, 3, -2),
    Sketcher.Constraint("Diameter", 0, Q("0.13 in")),
    Sketcher.Constraint("DistanceX", 1, 3, 0, 3, Q("3.5 in")),
    Sketcher.Constraint("DistanceY", 2, 3, 1, 3, Q("3.25 in")),
])
sketch8.setExpression("Constraints[6]", "Params.sketch8_diameter")
pocket7 = body.newObject("PartDesign::Pocket", "Pocket006")
pocket7.Profile = sketch8
pocket7.Type = "ThroughAll"

sketch9 = body.newObject("Sketcher::SketchObject", "Sketch008")
sketch9.AttachmentSupport = (doc.getObject("XY_Plane"), [""])
sketch9.MapMode = "FlatFace"
sketch9.AttachmentOffset = App.Placement(V(0, 0, 0.123 * 25.4), App.Rotation())
sketch9.addGeometry(Part.Circle(V(-80.3, -50.9, 0), V(0, 0, 1), 1.6), False)
sketch9.addGeometry(Part.Circle(V(-59.7, -50.9, 0), V(0, 0, 1), 1.6), False)
add_polygon(sketch9, [(-75.6, -49.4), (-75.6, -52.4), (-64.4, -52.4), (-64.4, -49.4)])
sketch9.addConstraint([
    Sketcher.Constraint("Vertical", 2),
    Sketcher.Constraint("Horizontal", 3),
    Sketcher.Constraint("Vertical", 4),
    Sketcher.Constraint("Horizontal", 5),
    Sketcher.Constraint("Equal", 0, 1),
    Sketcher.Constraint("Horizontal", 0, 3, 1, 3),
    Sketcher.Constraint("Diameter", 0, Q("0.125 in")),
    Sketcher.Constraint("DistanceX", 3, 1, 3, 2, Q("0.4375 in")),
    Sketcher.Constraint("DistanceY", 2, 2, 2, 1, Q("0.118 in")),
    Sketcher.Constraint("DistanceY", 2, 2, -1, 1, Q("2.0625 in")),
    Sketcher.Constraint("DistanceX", 0, 3, 1, 3, Q("0.8125 in")),
    Sketcher.Constraint("DistanceX", 0, 3, 2, 2, Q("0.1875 in")),
    Sketcher.Constraint("DistanceY", 2, 2, 0, 3, Q("0.059 in")),
    Sketcher.Constraint("DistanceX", 0, 3, -1, 1, Q("80.317145 mm")),
])
sketch9.setExpression("Constraints[10]", "Params.sketch9_diameter")
sketch9.setExpression("Constraints[11]", "Params.sketch9_width")
sketch9.setExpression("Constraints[12]", "Params.sketch9_height")
pocket8 = body.newObject("PartDesign::Pocket", "Pocket007")
pocket8.Profile = sketch9
pocket8.Type = "ThroughAll"

sketch10 = body.newObject("Sketcher::SketchObject", "Sketch009")
sketch10.AttachmentSupport = (doc.getObject("XY_Plane"), [""])
sketch10.MapMode = "FlatFace"
sketch10.AttachmentOffset = App.Placement(V(0, 0, 0.123 * 25.4), App.Rotation())
sketch10.addGeometry(Part.Circle(V(-49.8, -39, 0), V(0, 0, 1), 1), False)
add_polygon(sketch10, [(-51.3, -28.2), (-51.3, -35.5), (-48.3, -35.5), (-48.3, -28.2)])
sketch10.addConstraint([
    Sketcher.Constraint("Vertical", 1),
    Sketcher.Constraint("Horizontal", 2),
    Sketcher.Constraint("Vertical", 3),
    Sketcher.Constraint("Horizontal", 4),
    Sketcher.Constraint("Diameter", 0, Q("0.08 in")),
    Sketcher.Constraint("DistanceX", 2, 1, 2, 2, Q("0.118 in")),
    Sketcher.Constraint("DistanceY", 1, 2, 1, 1, Q("0.285 in")),
    Sketcher.Constraint("DistanceY", 0, 3, 1, 2, Q("0.14 in")),
    Sketcher.Constraint("DistanceY", 0, 3, -1, 1, Q("1.536 in")),
    Sketcher.Constraint("DistanceX", 1, 2, 0, 3, Q("0.056 in")),
    Sketcher.Constraint("DistanceX", 0, 3, -1, 1, Q("49.843495 mm")),
])
sketch10.setExpression("Constraints[8]", "Params.sketch10_diameter")
sketch10.setExpression("Constraints[9]", "Params.sketch10_width")
sketch10.setExpression("Constraints[10]", "Params.sketch10_height")
pocket9 = body.newObject("PartDesign::Pocket", "Pocket008")
pocket9.Profile = sketch10
pocket9.Type = "ThroughAll"

sketch11 = body.newObject("Sketcher::SketchObject", "Sketch010")
sketch11.AttachmentSupport = (doc.getObject("XY_Plane"), [""])
sketch11.MapMode = "FlatFace"
sketch11.AttachmentOffset = App.Placement(V(0, 0, 0.123 * 25.4), App.Rotation())
sketch11.addGeometry([
    Part.ArcOfCircle(Part.Circle(V(80.8, 60.7, 0), V(0, 0, 1), 5.2), math.radians(39.75), math.radians(48.38)),
    Part.ArcOfCircle(Part.Circle(V(7.8, 0, 0), V(0, 0, 1), 100.1), math.radians(-40), math.radians(40)),
    Part.ArcOfCircle(Part.Circle(V(80.8, -60.7, 0), V(0, 0, 1), 5.2), math.radians(-48.38), math.radians(-39.75)),
    Part.ArcOfCircle(Part.Circle(V(26.9, 0, 0), V(0, 0, 1), 86.4), math.radians(-48), math.radians(48)),
], False)
sketch11.addConstraint([
    Sketcher.Constraint("Tangent", 0, 1, 1, 2),
    Sketcher.Constraint("Tangent", 1, 1, 2, 2),
    Sketcher.Constraint("Tangent", 2, 1, 3, 1),
    Sketcher.Constraint("Tangent", 3, 2, 0, 2),
    Sketcher.Constraint("Equal", 0, 2),
    Sketcher.Constraint("Symmetric", 0, 3, 2, 3, -1),
    Sketcher.Constraint("Radius", 0, Q("0.203125 in")),
    Sketcher.Constraint("DistanceX", 1, 3, 3, 3, Q("0.75 in")),
    Sketcher.Constraint("DistanceY", -1, 1, 0, 3, Q("2.391 in")),
    Sketcher.Constraint("Radius", 1, Q("100.128059 mm")),
    Sketcher.Constraint("DistanceX", -1, 1, 0, 1, Q("3.3386001 in")),
])
sketch11.setExpression("Constraints[6]", "Params.sketch11_radius")
pad2 = body.newObject("PartDesign::Pad", "Pad001")
pad2.Profile = sketch11
pad2.setExpression("Length", "Params.pad2_length")
pad2.Reversed = True

sketch12 = body.newObject("Sketcher::SketchObject", "Sketch011")
sketch12.AttachmentSupport = (doc.getObject("XY_Plane"), [""])
sketch12.MapMode = "FlatFace"
sketch12.AttachmentOffset = App.Placement(V(0, 0, 0.123 * 25.4), App.Rotation())
sketch12.addGeometry(Part.Circle(V(108, 11.8, 0), V(0, 0, 1), 1), False)
sketch12.addGeometry(Part.Circle(V(108, -11.8, 0), V(0, 0, 1), 1), False)
sketch12.addGeometry(Part.Circle(V(11.8, 68.4, 0), V(0, 0, 1), 1), False)
sketch12.addGeometry(Part.Circle(V(-11.8, 68.4, 0), V(0, 0, 1), 1), False)
sketch12.addGeometry(Part.Circle(V(-11.8, -68.4, 0), V(0, 0, 1), 1), False)
sketch12.addGeometry(Part.Circle(V(11.8, -68.4, 0), V(0, 0, 1), 1), False)
sketch12.addGeometry(Part.Circle(V(98.5, 30, 0), V(0, 0, 1), 1), False)
sketch12.addGeometry(Part.Circle(V(98.5, 6.3, 0), V(0, 0, 1), 1), False)
sketch12.addGeometry(Part.Circle(V(98.5, -6.3, 0), V(0, 0, 1), 1), False)
sketch12.addGeometry(Part.Circle(V(98.5, -30, 0), V(0, 0, 1), 1), False)
sketch12.addGeometry(Part.Circle(V(-103.3, 11.8, 0), V(0, 0, 1), 1), False)
sketch12.addGeometry(Part.Circle(V(-103.3, -11.8, 0), V(0, 0, 1), 1), False)
add_polygon(sketch12, [(106.5, 5.5), (106.5, -5.5), (109.5, -5.5), (109.5, 5.5)])
add_polygon(sketch12, [(-5.5, 69.8), (-5.5, 66.9), (5.5, 66.9), (5.5, 69.8)])
add_polygon(sketch12, [(-5.5, -66.9), (-5.5, -69.8), (5.5, -69.8), (5.5, -66.9)])
add_polygon(sketch12, [(97, 23.6), (97, 12.7), (100, 12.7), (100, 23.6)])
add_polygon(sketch12, [(97, -12.7), (97, -23.6), (100, -23.6), (100, -12.7)])
add_polygon(sketch12, [(-104.8, 5.5), (-104.8, -5.5), (-101.8, -5.5), (-101.8, 5.5)])
sketch12.addConstraint([
    Sketcher.Constraint("Vertical", 12),
    Sketcher.Constraint("Horizontal", 13),
    Sketcher.Constraint("Vertical", 14),
    Sketcher.Constraint("Horizontal", 15),
    Sketcher.Constraint("Vertical", 16),
    Sketcher.Constraint("Horizontal", 17),
    Sketcher.Constraint("Vertical", 18),
    Sketcher.Constraint("Horizontal", 19),
    Sketcher.Constraint("Vertical", 20),
    Sketcher.Constraint("Horizontal", 21),
    Sketcher.Constraint("Vertical", 22),
    Sketcher.Constraint("Horizontal", 23),
    Sketcher.Constraint("Vertical", 24),
    Sketcher.Constraint("Horizontal", 25),
    Sketcher.Constraint("Vertical", 26),
    Sketcher.Constraint("Horizontal", 27),
    Sketcher.Constraint("Vertical", 28),
    Sketcher.Constraint("Horizontal", 29),
    Sketcher.Constraint("Vertical", 30),
    Sketcher.Constraint("Horizontal", 31),
    Sketcher.Constraint("Vertical", 32),
    Sketcher.Constraint("Horizontal", 33),
    Sketcher.Constraint("Vertical", 34),
    Sketcher.Constraint("Horizontal", 35),
    Sketcher.Constraint("Equal", 0, 1),
    Sketcher.Constraint("Equal", 1, 2),
    Sketcher.Constraint("Equal", 2, 3),
    Sketcher.Constraint("Equal", 3, 4),
    Sketcher.Constraint("Equal", 4, 5),
    Sketcher.Constraint("Equal", 5, 6),
    Sketcher.Constraint("Equal", 6, 7),
    Sketcher.Constraint("Equal", 7, 8),
    Sketcher.Constraint("Equal", 8, 9),
    Sketcher.Constraint("Equal", 9, 10),
    Sketcher.Constraint("Equal", 10, 11),
    Sketcher.Constraint("Symmetric", 2, 3, 4, 3, -1, 1),
    Sketcher.Constraint("Symmetric", 3, 3, 5, 3, -1, 1),
    Sketcher.Constraint("Symmetric", 18, 2, 20, 2, -1, 1),
    Sketcher.Constraint("Symmetric", 16, 2, 22, 2, -1, 1),
    Sketcher.Constraint("Symmetric", 2, 3, 3, 3, -2),
    Sketcher.Constraint("Symmetric", 0, 3, 1, 3, -1),
    Sketcher.Constraint("Symmetric", 7, 3, 8, 3, -1),
    Sketcher.Constraint("Symmetric", 6, 3, 9, 3, -1),
    Sketcher.Constraint("Symmetric", 10, 3, 11, 3, -1),
    Sketcher.Constraint("Symmetric", 27, 2, 28, 2, -1),
    Sketcher.Constraint("Symmetric", 25, 2, 30, 2, -1),
    Sketcher.Constraint("Horizontal", 0, 3, 10, 3),
    Sketcher.Constraint("Horizontal", 13, 2, 32, 2),
    Sketcher.Constraint("Horizontal", 15, 2, 34, 2),
    Sketcher.Constraint("Vertical", 6, 3, 7, 3),
    Sketcher.Constraint("Vertical", 19, 2, 20, 2),
    Sketcher.Constraint("Equal", 15, 25),
    Sketcher.Constraint("Equal", 31, 33),
    Sketcher.Constraint("Equal", 23, 12),
    Sketcher.Constraint("Equal", 35, 16),
    Sketcher.Constraint("Equal", 14, 24),
    Sketcher.Constraint("Diameter", 0, Q("0.08 in")),
    Sketcher.Constraint("DistanceX", 17, 1, 17, 2, Q("0.43 in")),
    Sketcher.Constraint("DistanceY", -1, 1, 24, 2, Q("0.5 in")),
    Sketcher.Constraint("DistanceY", 8, 3, 7, 3, Q("0.5 in")),
    Sketcher.Constraint("DistanceY", 20, 2, 8, 3, Q("2.5 in")),
    Sketcher.Constraint("DistanceX", 13, 1, 13, 2, Q("0.118 in")),
    Sketcher.Constraint("DistanceY", -1, 1, 6, 3, Q("1.18 in")),
    Sketcher.Constraint("DistanceY", 1, 3, 0, 3, Q("0.93 in")),
    Sketcher.Constraint("DistanceX", 3, 3, 2, 3, Q("0.93 in")),
    Sketcher.Constraint("DistanceY", 1, 3, 12, 2, Q("0.25 in")),
    Sketcher.Constraint("DistanceX", 32, 2, 4, 3, Q("3.66 in")),
    Sketcher.Constraint("DistanceY", -1, 1, 2, 3, Q("2.691 in")),
    Sketcher.Constraint("DistanceX", 10, 3, -1, 1, Q("4.066 in")),
    Sketcher.Constraint("DistanceX", -1, 1, 13, 2, Q("4.3125 in")),
    Sketcher.Constraint("DistanceX", -1, 1, 25, 2, Q("3.9375 in")),
    Sketcher.Constraint("DistanceX", 6, 3, 0, 3, Q("0.375 in")),
    Sketcher.Constraint("DistanceX", 12, 2, 1, 3, Q("0.059 in")),
])
sketch12.setExpression("Constraints[80]", "Params.sketch12_diameter")
sketch12.setExpression("Constraints[81]", "Params.sketch12_width")
sketch12.setExpression("Constraints[85]", "Params.sketch12_width2")
pocket10 = body.newObject("PartDesign::Pocket", "Pocket009")
pocket10.Profile = sketch12
pocket10.Type = "ThroughAll"

doc.recompute()
